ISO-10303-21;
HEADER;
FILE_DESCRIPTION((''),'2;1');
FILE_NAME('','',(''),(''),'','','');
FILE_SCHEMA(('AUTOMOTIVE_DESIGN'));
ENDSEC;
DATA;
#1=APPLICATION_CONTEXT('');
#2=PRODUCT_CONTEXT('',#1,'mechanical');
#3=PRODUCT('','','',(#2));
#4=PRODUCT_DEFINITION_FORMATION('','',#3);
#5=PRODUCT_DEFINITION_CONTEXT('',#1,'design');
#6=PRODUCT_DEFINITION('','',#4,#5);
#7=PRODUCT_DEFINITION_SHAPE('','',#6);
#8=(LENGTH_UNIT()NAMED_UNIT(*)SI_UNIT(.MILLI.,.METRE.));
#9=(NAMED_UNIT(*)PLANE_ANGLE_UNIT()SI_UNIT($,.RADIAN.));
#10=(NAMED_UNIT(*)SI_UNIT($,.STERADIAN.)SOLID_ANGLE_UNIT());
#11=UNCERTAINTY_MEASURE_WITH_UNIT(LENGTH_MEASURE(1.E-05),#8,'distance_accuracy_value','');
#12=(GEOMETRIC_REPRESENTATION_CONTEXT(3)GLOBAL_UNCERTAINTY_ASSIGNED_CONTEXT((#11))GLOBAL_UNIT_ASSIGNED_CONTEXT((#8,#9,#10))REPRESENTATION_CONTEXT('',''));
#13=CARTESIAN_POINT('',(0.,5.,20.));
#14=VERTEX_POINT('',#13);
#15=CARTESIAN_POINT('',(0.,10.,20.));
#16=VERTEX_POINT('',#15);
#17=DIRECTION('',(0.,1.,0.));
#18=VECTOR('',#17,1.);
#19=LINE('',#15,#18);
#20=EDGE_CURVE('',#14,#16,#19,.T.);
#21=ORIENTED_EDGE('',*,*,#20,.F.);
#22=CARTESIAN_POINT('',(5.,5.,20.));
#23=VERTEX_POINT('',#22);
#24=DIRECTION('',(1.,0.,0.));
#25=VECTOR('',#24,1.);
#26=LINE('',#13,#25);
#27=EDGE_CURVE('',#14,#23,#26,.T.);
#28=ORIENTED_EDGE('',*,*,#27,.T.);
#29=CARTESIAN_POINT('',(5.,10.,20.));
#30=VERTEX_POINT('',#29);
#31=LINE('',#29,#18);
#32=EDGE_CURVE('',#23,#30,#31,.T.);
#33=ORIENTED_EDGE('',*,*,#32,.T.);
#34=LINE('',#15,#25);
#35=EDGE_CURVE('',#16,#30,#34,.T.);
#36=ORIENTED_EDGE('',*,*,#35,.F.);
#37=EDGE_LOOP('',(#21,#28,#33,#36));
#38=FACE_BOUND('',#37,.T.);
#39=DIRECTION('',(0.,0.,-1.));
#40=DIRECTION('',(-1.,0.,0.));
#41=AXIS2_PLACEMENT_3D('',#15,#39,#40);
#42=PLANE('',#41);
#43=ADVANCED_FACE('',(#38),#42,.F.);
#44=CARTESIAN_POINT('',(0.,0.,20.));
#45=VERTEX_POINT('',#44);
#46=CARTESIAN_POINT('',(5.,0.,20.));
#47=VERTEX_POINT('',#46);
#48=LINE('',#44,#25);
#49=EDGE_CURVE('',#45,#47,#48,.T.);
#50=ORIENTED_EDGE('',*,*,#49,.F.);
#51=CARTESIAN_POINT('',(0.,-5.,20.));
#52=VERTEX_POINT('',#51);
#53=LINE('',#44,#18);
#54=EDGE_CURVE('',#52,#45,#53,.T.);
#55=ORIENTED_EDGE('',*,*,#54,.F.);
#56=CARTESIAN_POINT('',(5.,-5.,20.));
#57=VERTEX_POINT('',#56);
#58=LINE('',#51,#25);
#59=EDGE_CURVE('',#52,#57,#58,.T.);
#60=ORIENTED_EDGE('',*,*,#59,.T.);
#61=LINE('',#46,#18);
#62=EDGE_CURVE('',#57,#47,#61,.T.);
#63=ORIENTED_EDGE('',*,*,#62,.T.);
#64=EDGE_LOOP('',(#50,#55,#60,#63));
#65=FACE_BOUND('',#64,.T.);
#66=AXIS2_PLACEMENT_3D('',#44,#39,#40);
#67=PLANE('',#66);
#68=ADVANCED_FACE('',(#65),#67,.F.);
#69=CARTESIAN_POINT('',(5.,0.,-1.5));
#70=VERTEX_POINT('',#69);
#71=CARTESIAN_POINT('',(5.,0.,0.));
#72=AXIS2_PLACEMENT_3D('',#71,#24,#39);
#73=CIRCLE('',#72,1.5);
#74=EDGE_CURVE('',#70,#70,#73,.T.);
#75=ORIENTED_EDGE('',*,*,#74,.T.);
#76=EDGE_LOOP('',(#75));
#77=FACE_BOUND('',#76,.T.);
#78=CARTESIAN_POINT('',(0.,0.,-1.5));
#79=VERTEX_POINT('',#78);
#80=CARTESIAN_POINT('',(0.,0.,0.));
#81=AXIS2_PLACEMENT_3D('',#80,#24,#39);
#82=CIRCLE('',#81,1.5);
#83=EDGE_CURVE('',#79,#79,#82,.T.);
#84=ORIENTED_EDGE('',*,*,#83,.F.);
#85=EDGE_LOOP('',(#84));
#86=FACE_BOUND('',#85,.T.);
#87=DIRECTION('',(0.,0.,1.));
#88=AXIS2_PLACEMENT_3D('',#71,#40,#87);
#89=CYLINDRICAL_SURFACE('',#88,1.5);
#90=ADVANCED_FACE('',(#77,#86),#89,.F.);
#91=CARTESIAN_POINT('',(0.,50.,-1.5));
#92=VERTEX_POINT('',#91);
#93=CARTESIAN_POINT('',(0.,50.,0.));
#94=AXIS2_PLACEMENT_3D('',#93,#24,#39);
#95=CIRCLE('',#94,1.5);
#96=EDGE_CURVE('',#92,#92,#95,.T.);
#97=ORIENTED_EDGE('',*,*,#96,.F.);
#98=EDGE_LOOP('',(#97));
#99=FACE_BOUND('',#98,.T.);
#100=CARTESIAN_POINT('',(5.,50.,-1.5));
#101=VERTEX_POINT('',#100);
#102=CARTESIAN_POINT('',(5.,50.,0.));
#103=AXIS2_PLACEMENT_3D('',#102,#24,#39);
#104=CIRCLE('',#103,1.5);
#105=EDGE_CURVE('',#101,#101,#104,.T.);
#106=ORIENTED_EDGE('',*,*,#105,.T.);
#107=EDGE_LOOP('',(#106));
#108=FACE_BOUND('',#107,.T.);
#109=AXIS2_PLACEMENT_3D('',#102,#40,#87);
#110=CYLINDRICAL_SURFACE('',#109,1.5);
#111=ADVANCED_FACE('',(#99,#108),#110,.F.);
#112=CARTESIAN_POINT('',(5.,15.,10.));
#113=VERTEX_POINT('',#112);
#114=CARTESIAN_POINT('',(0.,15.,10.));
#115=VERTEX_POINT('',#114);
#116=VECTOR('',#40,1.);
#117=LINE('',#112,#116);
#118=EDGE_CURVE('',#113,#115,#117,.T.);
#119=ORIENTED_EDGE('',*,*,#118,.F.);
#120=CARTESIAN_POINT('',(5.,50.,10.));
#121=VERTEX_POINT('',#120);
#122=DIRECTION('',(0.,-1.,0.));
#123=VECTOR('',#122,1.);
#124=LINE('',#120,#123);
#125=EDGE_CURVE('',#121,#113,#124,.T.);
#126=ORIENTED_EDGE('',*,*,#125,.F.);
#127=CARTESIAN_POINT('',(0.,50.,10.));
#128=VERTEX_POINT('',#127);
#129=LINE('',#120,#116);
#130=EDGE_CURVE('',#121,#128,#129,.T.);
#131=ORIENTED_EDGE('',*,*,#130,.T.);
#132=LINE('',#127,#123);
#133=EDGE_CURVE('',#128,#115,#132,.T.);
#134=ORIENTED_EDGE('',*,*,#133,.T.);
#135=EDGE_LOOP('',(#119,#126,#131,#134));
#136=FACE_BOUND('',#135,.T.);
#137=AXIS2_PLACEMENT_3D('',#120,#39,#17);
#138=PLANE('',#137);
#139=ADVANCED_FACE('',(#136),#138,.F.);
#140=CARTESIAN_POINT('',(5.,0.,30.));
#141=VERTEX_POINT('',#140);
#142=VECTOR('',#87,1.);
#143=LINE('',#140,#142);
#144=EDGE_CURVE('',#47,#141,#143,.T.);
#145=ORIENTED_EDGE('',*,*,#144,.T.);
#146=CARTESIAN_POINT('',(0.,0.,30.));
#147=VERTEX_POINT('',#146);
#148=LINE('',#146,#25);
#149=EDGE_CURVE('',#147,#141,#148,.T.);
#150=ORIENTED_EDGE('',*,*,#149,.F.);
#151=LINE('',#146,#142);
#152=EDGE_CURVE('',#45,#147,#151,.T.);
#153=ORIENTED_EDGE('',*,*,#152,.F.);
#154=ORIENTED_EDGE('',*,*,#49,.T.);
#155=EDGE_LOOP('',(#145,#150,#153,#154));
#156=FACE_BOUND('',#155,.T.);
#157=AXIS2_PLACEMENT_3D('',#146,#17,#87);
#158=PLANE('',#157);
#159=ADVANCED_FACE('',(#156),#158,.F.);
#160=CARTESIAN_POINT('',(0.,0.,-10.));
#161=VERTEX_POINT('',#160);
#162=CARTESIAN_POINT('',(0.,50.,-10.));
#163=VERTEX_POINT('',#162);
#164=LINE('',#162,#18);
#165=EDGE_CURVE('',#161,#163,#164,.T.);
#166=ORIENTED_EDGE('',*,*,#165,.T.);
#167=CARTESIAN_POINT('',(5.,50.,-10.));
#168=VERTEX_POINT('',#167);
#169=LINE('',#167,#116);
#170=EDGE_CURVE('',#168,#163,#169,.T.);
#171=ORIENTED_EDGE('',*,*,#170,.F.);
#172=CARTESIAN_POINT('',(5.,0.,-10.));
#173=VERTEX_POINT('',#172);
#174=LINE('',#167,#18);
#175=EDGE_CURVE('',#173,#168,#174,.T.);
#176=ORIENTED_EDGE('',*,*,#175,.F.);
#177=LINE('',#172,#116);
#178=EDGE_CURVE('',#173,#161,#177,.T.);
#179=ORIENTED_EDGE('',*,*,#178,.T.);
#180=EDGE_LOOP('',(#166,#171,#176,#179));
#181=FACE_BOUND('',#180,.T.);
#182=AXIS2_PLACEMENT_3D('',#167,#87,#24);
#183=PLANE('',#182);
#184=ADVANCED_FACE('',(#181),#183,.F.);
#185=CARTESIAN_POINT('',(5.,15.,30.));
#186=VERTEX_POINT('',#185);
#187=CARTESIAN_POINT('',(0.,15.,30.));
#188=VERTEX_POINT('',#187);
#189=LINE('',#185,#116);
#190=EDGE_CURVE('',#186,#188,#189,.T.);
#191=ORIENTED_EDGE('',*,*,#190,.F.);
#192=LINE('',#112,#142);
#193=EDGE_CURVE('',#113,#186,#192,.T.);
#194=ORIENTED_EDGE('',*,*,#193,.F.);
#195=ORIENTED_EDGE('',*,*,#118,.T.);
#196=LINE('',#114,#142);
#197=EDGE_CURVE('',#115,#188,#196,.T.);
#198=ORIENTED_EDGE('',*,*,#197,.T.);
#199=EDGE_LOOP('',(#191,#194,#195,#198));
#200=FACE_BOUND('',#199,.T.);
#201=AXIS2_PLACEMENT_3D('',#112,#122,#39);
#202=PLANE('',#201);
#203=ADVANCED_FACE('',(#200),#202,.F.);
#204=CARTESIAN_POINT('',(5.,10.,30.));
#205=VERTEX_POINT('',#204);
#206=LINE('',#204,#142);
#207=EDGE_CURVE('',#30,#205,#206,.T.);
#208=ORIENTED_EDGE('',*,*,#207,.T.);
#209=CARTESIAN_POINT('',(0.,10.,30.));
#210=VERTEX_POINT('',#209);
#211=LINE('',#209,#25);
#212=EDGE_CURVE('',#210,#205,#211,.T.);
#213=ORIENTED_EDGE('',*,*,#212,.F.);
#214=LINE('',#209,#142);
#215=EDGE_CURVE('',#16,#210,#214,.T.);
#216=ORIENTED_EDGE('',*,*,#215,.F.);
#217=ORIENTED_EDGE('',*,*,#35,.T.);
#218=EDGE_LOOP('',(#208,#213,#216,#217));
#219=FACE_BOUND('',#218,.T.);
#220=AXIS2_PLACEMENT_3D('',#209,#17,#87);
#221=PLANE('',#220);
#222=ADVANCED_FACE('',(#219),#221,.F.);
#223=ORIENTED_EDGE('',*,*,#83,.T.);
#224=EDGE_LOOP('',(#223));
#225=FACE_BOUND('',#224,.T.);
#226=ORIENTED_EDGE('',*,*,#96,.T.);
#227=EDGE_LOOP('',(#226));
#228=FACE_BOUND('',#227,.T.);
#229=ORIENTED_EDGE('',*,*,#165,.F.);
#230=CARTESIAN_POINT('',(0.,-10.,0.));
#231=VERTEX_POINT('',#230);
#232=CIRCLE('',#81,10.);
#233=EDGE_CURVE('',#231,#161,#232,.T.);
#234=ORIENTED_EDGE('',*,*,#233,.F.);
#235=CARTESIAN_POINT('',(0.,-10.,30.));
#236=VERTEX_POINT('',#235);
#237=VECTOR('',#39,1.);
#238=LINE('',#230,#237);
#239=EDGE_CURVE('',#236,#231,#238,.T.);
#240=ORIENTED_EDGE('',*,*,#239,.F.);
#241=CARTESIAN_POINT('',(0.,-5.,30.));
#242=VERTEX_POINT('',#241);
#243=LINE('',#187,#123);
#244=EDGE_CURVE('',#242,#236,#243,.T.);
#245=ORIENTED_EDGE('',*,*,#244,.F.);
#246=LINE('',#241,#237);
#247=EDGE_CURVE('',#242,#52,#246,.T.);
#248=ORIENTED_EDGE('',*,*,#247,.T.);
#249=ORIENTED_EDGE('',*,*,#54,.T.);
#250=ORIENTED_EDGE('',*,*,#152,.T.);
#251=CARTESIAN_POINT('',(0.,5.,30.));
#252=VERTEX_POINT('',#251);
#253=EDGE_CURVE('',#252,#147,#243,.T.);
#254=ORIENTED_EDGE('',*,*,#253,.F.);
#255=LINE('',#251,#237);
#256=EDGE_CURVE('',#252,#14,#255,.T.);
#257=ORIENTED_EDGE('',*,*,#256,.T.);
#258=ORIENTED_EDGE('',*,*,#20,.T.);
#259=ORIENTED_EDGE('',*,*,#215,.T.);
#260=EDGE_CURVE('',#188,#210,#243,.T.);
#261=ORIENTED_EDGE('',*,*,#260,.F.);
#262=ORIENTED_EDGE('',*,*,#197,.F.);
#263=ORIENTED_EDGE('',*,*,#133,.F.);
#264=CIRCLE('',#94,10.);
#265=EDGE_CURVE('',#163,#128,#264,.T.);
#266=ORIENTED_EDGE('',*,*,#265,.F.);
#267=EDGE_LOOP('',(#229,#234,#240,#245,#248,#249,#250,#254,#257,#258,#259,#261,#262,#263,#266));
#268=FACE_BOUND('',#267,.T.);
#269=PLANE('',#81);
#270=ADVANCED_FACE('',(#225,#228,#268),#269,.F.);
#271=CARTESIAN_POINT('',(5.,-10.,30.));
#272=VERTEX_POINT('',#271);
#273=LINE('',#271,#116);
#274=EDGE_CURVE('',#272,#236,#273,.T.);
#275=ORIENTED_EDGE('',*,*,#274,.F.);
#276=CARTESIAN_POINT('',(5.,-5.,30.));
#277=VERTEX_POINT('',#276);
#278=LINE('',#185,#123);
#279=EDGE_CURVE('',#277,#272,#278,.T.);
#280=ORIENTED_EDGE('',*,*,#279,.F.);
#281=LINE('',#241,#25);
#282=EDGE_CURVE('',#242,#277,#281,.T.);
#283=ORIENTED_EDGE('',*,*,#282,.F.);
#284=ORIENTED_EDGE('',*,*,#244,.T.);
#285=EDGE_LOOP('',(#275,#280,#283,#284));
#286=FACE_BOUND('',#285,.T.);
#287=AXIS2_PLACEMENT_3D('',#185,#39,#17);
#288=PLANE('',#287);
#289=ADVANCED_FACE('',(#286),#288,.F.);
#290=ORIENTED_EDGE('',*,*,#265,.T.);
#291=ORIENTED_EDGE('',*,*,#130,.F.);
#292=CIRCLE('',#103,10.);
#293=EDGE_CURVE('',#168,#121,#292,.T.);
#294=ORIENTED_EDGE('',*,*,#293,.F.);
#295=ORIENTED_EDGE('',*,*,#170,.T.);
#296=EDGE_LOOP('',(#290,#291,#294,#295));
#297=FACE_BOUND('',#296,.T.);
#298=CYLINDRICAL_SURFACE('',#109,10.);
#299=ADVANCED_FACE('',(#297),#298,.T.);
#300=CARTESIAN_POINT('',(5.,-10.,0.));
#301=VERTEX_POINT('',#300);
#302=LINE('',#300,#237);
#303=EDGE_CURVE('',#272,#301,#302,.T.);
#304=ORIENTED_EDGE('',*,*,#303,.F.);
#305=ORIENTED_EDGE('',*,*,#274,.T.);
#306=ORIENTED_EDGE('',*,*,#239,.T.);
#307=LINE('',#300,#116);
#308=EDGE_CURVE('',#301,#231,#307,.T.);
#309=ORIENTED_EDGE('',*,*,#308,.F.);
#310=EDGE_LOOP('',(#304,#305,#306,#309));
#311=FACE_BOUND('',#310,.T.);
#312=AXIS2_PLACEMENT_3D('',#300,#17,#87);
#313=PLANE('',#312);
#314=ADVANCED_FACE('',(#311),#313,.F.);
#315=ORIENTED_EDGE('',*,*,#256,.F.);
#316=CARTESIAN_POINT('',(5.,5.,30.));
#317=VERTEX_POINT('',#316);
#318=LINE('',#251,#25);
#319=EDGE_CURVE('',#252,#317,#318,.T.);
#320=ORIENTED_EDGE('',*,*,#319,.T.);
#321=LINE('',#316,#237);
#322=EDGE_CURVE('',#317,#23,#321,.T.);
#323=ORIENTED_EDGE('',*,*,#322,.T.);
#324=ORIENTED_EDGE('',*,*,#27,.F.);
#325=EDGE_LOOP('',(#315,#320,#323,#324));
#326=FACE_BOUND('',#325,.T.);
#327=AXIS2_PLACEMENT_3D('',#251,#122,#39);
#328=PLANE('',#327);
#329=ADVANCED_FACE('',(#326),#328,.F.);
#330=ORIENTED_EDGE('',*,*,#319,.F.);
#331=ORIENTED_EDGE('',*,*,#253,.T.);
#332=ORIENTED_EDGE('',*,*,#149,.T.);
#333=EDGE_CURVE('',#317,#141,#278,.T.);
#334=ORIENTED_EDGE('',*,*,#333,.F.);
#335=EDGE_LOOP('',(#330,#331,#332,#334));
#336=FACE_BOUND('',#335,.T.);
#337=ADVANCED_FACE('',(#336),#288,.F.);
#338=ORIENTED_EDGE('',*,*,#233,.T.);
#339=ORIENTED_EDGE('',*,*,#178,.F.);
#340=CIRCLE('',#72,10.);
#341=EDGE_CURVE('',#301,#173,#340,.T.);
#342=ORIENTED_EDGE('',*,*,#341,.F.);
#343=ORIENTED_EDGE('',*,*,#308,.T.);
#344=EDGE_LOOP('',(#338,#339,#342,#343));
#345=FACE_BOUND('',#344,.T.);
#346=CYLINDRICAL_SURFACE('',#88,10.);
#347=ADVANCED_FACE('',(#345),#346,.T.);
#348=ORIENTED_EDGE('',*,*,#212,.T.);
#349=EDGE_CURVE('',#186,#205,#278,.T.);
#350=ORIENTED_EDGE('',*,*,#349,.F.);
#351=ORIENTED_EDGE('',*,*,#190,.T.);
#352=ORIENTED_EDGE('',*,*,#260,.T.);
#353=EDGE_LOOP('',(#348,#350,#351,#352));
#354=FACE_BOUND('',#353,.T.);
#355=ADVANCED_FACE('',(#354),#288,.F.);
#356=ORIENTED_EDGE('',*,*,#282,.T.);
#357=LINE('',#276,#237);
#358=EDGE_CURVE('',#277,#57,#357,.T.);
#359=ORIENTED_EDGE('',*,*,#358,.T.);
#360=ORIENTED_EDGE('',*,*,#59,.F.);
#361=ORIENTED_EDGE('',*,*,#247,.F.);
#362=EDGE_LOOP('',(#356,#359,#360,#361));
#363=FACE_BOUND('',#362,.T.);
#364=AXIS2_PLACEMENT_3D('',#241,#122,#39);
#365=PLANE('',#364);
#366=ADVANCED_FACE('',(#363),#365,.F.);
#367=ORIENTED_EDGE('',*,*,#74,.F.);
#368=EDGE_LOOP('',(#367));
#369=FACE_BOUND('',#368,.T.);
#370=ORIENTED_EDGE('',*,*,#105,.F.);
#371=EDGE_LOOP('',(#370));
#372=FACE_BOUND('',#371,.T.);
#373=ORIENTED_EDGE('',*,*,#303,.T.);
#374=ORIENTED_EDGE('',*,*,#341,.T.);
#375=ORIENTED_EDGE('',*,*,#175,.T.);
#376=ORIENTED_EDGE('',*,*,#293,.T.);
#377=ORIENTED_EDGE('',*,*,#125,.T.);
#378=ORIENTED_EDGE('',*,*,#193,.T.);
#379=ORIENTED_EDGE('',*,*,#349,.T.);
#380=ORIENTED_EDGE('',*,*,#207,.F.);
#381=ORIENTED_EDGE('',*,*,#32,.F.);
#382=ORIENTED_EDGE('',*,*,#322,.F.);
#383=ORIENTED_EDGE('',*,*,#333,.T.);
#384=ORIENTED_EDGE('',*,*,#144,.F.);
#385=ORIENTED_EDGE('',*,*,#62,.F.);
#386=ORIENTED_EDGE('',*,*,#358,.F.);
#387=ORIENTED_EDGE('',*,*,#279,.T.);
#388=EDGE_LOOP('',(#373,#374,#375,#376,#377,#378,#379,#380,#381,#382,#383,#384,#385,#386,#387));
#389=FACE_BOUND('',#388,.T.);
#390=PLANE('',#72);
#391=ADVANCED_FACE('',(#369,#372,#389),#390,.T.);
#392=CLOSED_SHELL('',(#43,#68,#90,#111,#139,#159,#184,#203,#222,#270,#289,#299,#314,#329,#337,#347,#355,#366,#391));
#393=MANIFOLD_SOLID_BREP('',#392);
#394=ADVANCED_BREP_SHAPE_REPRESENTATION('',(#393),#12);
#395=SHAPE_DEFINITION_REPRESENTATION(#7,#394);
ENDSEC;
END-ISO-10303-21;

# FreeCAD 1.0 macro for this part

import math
import FreeCAD as App
import Part
import Sketcher

V = App.Vector

doc = App.newDocument("Part")
body = doc.addObject("PartDesign::Body", "Body")

sketch1 = body.newObject("Sketcher::SketchObject", "Sketch")
sketch1.AttachmentSupport = (doc.getObject("YZ_Plane"), [""])
sketch1.MapMode = "FlatFace"
sketch1.addGeometry([
    Part.LineSegment(V(15, 10, 0), V(15, 30, 0)),
    Part.LineSegment(V(15, 30, 0), V(-10, 30, 0)),
    Part.LineSegment(V(-10, 30, 0), V(-10, 0, 0)),
    Part.ArcOfCircle(Part.Circle(V(0, 0, 0), V(0, 0, 1), 10), math.radians(180), math.radians(270)),
    Part.LineSegment(V(0, -10, 0), V(50, -10, 0)),
    Part.ArcOfCircle(Part.Circle(V(50, 0, 0), V(0, 0, 1), 10), math.radians(-90), math.radians(90)),
    Part.LineSegment(V(50, 10, 0), V(15, 10, 0)),
    Part.Circle(V(0, 0, 0), V(0, 0, 1), 1.5),
    Part.Circle(V(50, 0, 0), V(0, 0, 1), 1.5),
], False)
sketch1.addConstraint([
    Sketcher.Constraint("Coincident", 0, 2, 1, 1),
    Sketcher.Constraint("Coincident", 1, 2, 2, 1),
    Sketcher.Constraint("Tangent", 2, 2, 3, 1),
    Sketcher.Constraint("Tangent", 3, 2, 4, 1),
    Sketcher.Constraint("Tangent", 4, 2, 5, 1),
    Sketcher.Constraint("Tangent", 5, 2, 6, 1),
    Sketcher.Constraint("Coincident", 6, 2, 0, 1),
    Sketcher.Constraint("Vertical", 0),
    Sketcher.Constraint("Horizontal", 1),
    Sketcher.Constraint("Vertical", 2),
    Sketcher.Constraint("Horizontal", 4),
    Sketcher.Constraint("Horizontal", 6),
    Sketcher.Constraint("Coincident", 3, 3, -1, 1),
    Sketcher.Constraint("Coincident", 7, 3, -1, 1),
    Sketcher.Constraint("Coincident", 8, 3, 5, 3),
    Sketcher.Constraint("Equal", 3, 5),
    Sketcher.Constraint("Equal", 7, 8),
    Sketcher.Constraint("Diameter", 7, 3.0),
    Sketcher.Constraint("Radius", 3, 10.0),
    Sketcher.Constraint("DistanceX", 1, 2, 1, 1, 25.0),
    Sketcher.Constraint("DistanceX", 4, 1, 4, 2, 50.0),
    Sketcher.Constraint("DistanceY", 0, 1, 0, 2, 20.0),
])
pad1 = body.newObject("PartDesign::Pad", "Pad")
pad1.Profile = sketch1
pad1.Length = 5

sketch2 = body.newObject("Sketcher::SketchObject", "Sketch001")
sketch2.AttachmentSupport = (doc.getObject("YZ_Plane"), [""])
sketch2.MapMode = "FlatFace"
sketch2.AttachmentOffset = App.Placement(V(0, 0, 5), App.Rotation())
sketch2.addGeometry([
    Part.LineSegment(V(10, 30, 0), V(5, 30, 0)),
    Part.LineSegment(V(5, 30, 0), V(5, 20, 0)),
    Part.LineSegment(V(5, 20, 0), V(10, 20, 0)),
    Part.LineSegment(V(10, 20, 0), V(10, 30, 0)),
    Part.LineSegment(V(0, 30, 0), V(-5, 30, 0)),
    Part.LineSegment(V(-5, 30, 0), V(-5, 20, 0)),
    Part.LineSegment(V(-5, 20, 0), V(0, 20, 0)),
    Part.LineSegment(V(0, 20, 0), V(0, 30, 0)),
], False)
sketch2.addConstraint([
    Sketcher.Constraint("Coincident", 0, 2, 1, 1),
    Sketcher.Constraint("Coincident", 1, 2, 2, 1),
    Sketcher.Constraint("Coincident", 2, 2, 3, 1),
    Sketcher.Constraint("Coincident", 3, 2, 0, 1),
    Sketcher.Constraint("Coincident", 4, 2, 5, 1),
    Sketcher.Constraint("Coincident", 5, 2, 6, 1),
    Sketcher.Constraint("Coincident", 6, 2, 7, 1),
    Sketcher.Constraint("Coincident", 7, 2, 4, 1),
    Sketcher.Constraint("Horizontal", 0),
    Sketcher.Constraint("Vertical", 1),
    Sketcher.Constraint("Horizontal", 2),
    Sketcher.Constraint("Vertical", 3),
    Sketcher.Constraint("Horizontal", 4),
    Sketcher.Constraint("Vertical", 5),
    Sketcher.Constraint("Horizontal", 6),
    Sketcher.Constraint("Vertical", 7),
    Sketcher.Constraint("Symmetric", 0, 2, 4, 2, -2),
    Sketcher.Constraint("PointOnObject", 6, 2, -2),
    Sketcher.Constraint("Horizontal", 2, 2, 5, 2),
    Sketcher.Constraint("Equal", 2, 4),
    Sketcher.Constraint("DistanceX", 0, 2, 0, 1, 5.0),
    Sketcher.Constraint("DistanceY", 1, 2, 1, 1, 10.0),
    Sketcher.Constraint("DistanceY", -1, 1, 0, 2, 30.0),
])
pocket1 = body.newObject("PartDesign::Pocket", "Pocket")
pocket1.Profile = sketch2
pocket1.Length = 5

doc.recompute()
